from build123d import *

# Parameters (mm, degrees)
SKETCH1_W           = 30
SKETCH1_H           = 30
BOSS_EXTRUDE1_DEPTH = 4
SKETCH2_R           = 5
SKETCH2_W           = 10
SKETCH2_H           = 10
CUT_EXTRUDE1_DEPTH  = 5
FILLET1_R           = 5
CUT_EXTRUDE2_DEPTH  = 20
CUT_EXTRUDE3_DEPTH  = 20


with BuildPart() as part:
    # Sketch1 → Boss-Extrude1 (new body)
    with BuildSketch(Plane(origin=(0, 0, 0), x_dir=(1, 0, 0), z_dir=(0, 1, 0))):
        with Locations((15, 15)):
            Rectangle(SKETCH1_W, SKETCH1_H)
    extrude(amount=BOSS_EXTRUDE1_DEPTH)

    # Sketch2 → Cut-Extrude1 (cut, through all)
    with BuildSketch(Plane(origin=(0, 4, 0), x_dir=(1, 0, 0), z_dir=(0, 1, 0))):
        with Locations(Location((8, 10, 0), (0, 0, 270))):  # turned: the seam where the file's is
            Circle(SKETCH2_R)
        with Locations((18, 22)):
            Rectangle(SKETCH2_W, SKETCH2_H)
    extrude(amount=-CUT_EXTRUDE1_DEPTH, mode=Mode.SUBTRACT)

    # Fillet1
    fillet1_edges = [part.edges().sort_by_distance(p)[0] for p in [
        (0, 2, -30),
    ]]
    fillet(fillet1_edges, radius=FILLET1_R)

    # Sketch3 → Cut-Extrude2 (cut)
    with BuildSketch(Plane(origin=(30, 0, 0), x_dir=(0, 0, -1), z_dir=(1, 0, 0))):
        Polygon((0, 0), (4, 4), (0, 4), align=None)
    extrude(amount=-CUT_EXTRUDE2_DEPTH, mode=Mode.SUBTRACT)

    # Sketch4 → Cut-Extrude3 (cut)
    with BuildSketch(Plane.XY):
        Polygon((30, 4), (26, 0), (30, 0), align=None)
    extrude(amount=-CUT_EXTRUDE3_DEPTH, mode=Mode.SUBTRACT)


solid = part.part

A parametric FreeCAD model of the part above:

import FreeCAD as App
import Part
import Sketcher
Q = App.Units.Quantity


def edges_at(feature, points):
    """Names of the edges that pass closest to the given points."""
    edges = feature.Shape.Edges
    near = lambda p: min(range(len(edges)), key=lambda i: edges[i].distToShape(Part.Vertex(*p))[0])
    return sorted({f"Edge{near(p) + 1}" for p in points})

doc = App.newDocument("Part")
params = doc.addObject("Spreadsheet::Sheet", "Params")
for row, (alias, value) in enumerate([
    ("sketch1_width", "30 mm"),
    ("pad1_length", "4 mm"),
    ("sketch2_diameter", "10 mm"),
    ("sketch2_width", "10 mm"),
    ("fillet_radius", "5 mm"),
    ("sketch3_width", "4 mm"),
    ("pocket2_length", "20 mm"),
    ("sketch4_width", "4 mm"),
    ("pocket3_length", "20 mm"),
], start=1):
    params.set(f"A{row}", alias)
    params.set(f"B{row}", "=" + value)
    params.setAlias(f"B{row}", alias)

body = doc.addObject("PartDesign::Body", "Body")

# Sketch on XZ plane
sketch1 = body.newObject("Sketcher::SketchObject", "Sketch")
sketch1.AttachmentSupport = (doc.getObject("XZ_Plane"), [""])
sketch1.MapMode = "FlatFace"
sketch1.addGeometry([
    Part.LineSegment(App.Vector(0, -30, 0), App.Vector(0, 0, 0)),
    Part.LineSegment(App.Vector(0, 0, 0), App.Vector(30, 0, 0)),
    Part.LineSegment(App.Vector(30, 0, 0), App.Vector(30, -30, 0)),
    Part.LineSegment(App.Vector(30, -30, 0), App.Vector(0, -30, 0)),
], False)
sketch1.addConstraint([
    Sketcher.Constraint("Coincident", 0, 2, 1, 1),
    Sketcher.Constraint("Coincident", 1, 2, 2, 1),
    Sketcher.Constraint("Coincident", 2, 2, 3, 1),
    Sketcher.Constraint("Coincident", 3, 2, 0, 1),
    Sketcher.Constraint("Vertical", 0),
    Sketcher.Constraint("Horizontal", 1),
    Sketcher.Constraint("Vertical", 2),
    Sketcher.Constraint("Horizontal", 3),
    Sketcher.Constraint("Coincident", 0, 2, -1, 1),
    Sketcher.Constraint("Equal", 3, 0),
    Sketcher.Constraint("DistanceX", 1, 1, 1, 2, Q("30 mm")),
])
sketch1.setExpression("Constraints[10]", "Params.sketch1_width")
pad1 = body.newObject("PartDesign::Pad", "Pad")
pad1.Profile = sketch1
pad1.setExpression("Length", "Params.pad1_length")
pad1.Reversed = True

# Sketch on XZ plane
sketch2 = body.newObject("Sketcher::SketchObject", "Sketch001")
sketch2.AttachmentSupport = (doc.getObject("XZ_Plane"), [""])
sketch2.MapMode = "FlatFace"
sketch2.AttachmentOffset = App.Placement(App.Vector(0, 0, -4), App.Rotation())
sketch2.addGeometry([
    Part.Circle(App.Vector(8, -10, 0), App.Vector(0, 0, 1), 5),  # 0
    Part.LineSegment(App.Vector(13, -27, 0), App.Vector(13, -17, 0)),  # 1
    Part.LineSegment(App.Vector(13, -17, 0), App.Vector(23, -17, 0)),  # 2
    Part.LineSegment(App.Vector(23, -17, 0), App.Vector(23, -27, 0)),  # 3
    Part.LineSegment(App.Vector(23, -27, 0), App.Vector(13, -27, 0)),  # 4
], False)
sketch2.addConstraint([
    Sketcher.Constraint("Coincident", 1, 2, 2, 1),
    Sketcher.Constraint("Coincident", 2, 2, 3, 1),
    Sketcher.Constraint("Coincident", 3, 2, 4, 1),
    Sketcher.Constraint("Coincident", 4, 2, 1, 1),
    Sketcher.Constraint("Vertical", 1),
    Sketcher.Constraint("Horizontal", 2),
    Sketcher.Constraint("Vertical", 3),
    Sketcher.Constraint("Horizontal", 4),
    Sketcher.Constraint("Equal", 4, 1),
    Sketcher.Constraint("Diameter", 0, Q("10 mm")),
    Sketcher.Constraint("DistanceX", 2, 1, 2, 2, Q("10 mm")),
    Sketcher.Constraint("DistanceX", -1, 1, 0, 3, Q("8 mm")),
    Sketcher.Constraint("DistanceY", 0, 3, -1, 1, Q("10 mm")),
    Sketcher.Constraint("DistanceX", -1, 1, 1, 2, Q("13 mm")),
    Sketcher.Constraint("DistanceY", 1, 2, -1, 1, Q("17 mm")),
])
sketch2.setExpression("Constraints[9]", "Params.sketch2_diameter")
sketch2.setExpression("Constraints[10]", "Params.sketch2_width")
pocket1 = body.newObject("PartDesign::Pocket", "Pocket")
pocket1.Profile = sketch2
pocket1.Type = "ThroughAll"
pocket1.Reversed = True
doc.recompute()

fillet = body.newObject("PartDesign::Fillet", "Fillet")
fillet.Base = (pocket1, edges_at(pocket1, [(0, 2, -30)]))
fillet.setExpression("Radius", "Params.fillet_radius")

# Sketch on YZ plane
sketch3 = body.newObject("Sketcher::SketchObject", "Sketch002")
sketch3.AttachmentSupport = (doc.getObject("YZ_Plane"), [""])
sketch3.MapMode = "FlatFace"
sketch3.AttachmentOffset = App.Placement(App.Vector(0, 0, 30), App.Rotation())
sketch3.addGeometry([
    Part.LineSegment(App.Vector(0, 0, 0), App.Vector(4, -4, 0)),
    Part.LineSegment(App.Vector(4, -4, 0), App.Vector(4, 0, 0)),
    Part.LineSegment(App.Vector(4, 0, 0), App.Vector(0, 0, 0)),
], False)
sketch3.addConstraint([
    Sketcher.Constraint("Coincident", 0, 2, 1, 1),
    Sketcher.Constraint("Coincident", 1, 2, 2, 1),
    Sketcher.Constraint("Coincident", 2, 2, 0, 1),
    Sketcher.Constraint("Vertical", 1),
    Sketcher.Constraint("Horizontal", 2),
    Sketcher.Constraint("Coincident", 2, 2, -1, 1),
    Sketcher.Constraint("Equal", 2, 1),
    Sketcher.Constraint("DistanceX", 2, 2, 2, 1, Q("4 mm")),
])
sketch3.setExpression("Constraints[7]", "Params.sketch3_width")
pocket2 = body.newObject("PartDesign::Pocket", "Pocket001")
pocket2.Profile = sketch3
pocket2.setExpression("Length", "Params.pocket2_length")

# Sketch on XY plane
sketch4 = body.newObject("Sketcher::SketchObject", "Sketch003")
sketch4.AttachmentSupport = (doc.getObject("XY_Plane"), [""])
sketch4.MapMode = "FlatFace"
sketch4.addGeometry([
    Part.LineSegment(App.Vector(30, 4, 0), App.Vector(26, 0, 0)),
    Part.LineSegment(App.Vector(26, 0, 0), App.Vector(30, 0, 0)),
    Part.LineSegment(App.Vector(30, 0, 0), App.Vector(30, 4, 0)),
], False)
sketch4.addConstraint([
    Sketcher.Constraint("Coincident", 0, 2, 1, 1),
    Sketcher.Constraint("Coincident", 1, 2, 2, 1),
    Sketcher.Constraint("Coincident", 2, 2, 0, 1),
    Sketcher.Constraint("Horizontal", 1),
    Sketcher.Constraint("Vertical", 2),
    Sketcher.Constraint("PointOnObject", 0, 2, -1),
    Sketcher.Constraint("Equal", 1, 2),
    Sketcher.Constraint("DistanceX", 1, 1, 1, 2, Q("4 mm")),
    Sketcher.Constraint("DistanceX", -1, 1, 0, 2, Q("26 mm")),
])
sketch4.setExpression("Constraints[7]", "Params.sketch4_width")
pocket3 = body.newObject("PartDesign::Pocket", "Pocket002")
pocket3.Profile = sketch4
pocket3.setExpression("Length", "Params.pocket3_length")

doc.recompute()
